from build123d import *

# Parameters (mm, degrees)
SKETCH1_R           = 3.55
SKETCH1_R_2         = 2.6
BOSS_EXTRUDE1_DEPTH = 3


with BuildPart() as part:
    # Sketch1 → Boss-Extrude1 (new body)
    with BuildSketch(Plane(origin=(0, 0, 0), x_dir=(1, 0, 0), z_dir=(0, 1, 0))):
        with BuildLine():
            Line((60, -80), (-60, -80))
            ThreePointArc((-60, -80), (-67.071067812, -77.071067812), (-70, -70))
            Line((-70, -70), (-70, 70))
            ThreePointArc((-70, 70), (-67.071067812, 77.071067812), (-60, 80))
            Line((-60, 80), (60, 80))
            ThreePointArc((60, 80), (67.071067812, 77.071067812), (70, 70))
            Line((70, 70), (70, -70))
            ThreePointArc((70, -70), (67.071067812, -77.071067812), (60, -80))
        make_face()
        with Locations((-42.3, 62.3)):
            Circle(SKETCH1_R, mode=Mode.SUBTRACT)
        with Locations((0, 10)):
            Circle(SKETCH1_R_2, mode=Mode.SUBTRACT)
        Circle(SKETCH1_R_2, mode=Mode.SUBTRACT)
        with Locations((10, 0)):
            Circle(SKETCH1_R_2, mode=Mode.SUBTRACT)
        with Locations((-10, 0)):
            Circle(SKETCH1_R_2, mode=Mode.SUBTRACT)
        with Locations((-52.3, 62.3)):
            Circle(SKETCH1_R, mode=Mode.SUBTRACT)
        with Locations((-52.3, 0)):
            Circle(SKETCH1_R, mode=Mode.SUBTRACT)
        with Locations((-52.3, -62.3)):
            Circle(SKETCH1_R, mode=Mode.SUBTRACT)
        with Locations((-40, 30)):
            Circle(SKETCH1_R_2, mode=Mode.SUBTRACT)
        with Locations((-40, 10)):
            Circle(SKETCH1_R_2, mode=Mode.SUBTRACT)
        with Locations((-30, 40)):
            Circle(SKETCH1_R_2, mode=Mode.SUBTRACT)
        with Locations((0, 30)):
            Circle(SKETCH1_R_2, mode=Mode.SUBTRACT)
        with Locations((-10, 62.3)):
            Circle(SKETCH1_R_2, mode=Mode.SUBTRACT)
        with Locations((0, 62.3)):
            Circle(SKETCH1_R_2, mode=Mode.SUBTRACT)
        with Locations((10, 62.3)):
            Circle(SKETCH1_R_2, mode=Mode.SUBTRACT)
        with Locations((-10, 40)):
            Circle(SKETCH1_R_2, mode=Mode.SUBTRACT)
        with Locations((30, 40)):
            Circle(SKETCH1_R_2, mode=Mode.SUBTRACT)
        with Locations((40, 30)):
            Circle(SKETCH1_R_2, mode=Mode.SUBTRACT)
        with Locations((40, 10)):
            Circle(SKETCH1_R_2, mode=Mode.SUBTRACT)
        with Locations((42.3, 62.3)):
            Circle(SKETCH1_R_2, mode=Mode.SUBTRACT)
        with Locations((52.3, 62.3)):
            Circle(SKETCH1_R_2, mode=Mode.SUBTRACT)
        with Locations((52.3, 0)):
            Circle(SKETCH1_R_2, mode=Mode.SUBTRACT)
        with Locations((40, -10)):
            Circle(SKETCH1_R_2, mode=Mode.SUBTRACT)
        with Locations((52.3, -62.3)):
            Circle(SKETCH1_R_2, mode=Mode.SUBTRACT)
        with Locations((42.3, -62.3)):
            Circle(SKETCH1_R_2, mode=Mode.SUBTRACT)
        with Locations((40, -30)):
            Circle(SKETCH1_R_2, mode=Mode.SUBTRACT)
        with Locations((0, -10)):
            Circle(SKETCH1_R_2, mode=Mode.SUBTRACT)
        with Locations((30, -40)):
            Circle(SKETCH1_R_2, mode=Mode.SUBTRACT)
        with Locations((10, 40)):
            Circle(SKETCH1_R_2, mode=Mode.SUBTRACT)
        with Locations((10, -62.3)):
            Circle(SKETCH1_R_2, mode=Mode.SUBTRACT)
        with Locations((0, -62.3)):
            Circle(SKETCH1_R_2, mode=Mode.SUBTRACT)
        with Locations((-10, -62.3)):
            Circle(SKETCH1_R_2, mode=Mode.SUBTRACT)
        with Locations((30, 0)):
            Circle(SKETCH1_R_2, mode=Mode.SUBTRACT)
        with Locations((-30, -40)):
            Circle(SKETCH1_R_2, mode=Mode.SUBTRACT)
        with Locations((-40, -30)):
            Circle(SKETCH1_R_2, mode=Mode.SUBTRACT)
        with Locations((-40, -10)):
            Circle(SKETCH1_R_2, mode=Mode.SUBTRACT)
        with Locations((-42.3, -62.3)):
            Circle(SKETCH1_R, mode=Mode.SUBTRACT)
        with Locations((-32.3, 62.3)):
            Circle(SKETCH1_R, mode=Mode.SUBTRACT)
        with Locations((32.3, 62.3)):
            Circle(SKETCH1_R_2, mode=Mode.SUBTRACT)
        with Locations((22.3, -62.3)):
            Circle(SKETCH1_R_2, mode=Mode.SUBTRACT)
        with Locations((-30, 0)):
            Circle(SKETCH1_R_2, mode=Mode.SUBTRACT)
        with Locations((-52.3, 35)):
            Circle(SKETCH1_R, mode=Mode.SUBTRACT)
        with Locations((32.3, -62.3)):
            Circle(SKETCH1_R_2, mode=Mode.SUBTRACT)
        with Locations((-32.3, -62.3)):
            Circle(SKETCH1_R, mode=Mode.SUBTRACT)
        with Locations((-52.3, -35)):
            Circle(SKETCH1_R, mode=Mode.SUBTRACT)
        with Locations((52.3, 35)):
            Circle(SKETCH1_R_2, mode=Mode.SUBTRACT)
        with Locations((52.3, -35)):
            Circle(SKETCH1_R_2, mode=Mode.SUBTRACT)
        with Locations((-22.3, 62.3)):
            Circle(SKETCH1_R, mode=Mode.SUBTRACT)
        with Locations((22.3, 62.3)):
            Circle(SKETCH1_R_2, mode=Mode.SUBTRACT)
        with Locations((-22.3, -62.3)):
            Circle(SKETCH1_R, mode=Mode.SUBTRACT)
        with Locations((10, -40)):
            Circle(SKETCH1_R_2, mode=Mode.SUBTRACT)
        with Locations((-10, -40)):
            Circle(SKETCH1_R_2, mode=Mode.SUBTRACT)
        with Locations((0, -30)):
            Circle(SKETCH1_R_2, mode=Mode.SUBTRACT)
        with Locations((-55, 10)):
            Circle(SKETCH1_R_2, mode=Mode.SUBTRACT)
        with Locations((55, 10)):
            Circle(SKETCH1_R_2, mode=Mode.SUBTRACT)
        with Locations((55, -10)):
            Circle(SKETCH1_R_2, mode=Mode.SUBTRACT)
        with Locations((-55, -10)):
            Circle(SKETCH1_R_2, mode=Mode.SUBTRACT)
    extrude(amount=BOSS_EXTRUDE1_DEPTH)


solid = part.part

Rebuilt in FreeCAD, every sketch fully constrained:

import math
import FreeCAD as App
import Part
import Sketcher

doc = App.newDocument("Part")
body = doc.addObject("PartDesign::Body", "Body")

sketch1 = doc.addObject("Sketcher::SketchObject", "Sketch")
body.addObject(sketch1)
sketch1.AttachmentSupport = (doc.XZ_Plane, [""])
sketch1.MapMode = "FlatFace"
sketch1.addGeometry([
    Part.LineSegment(App.Vector(-60, 80, 0), App.Vector(60, 80, 0)),
    Part.ArcOfCircle(Part.Circle(App.Vector(60, 70, 0), App.Vector(0, 0, 1), 10), math.radians(0), math.radians(90)),
    Part.LineSegment(App.Vector(70, 70, 0), App.Vector(70, -70, 0)),
    Part.ArcOfCircle(Part.Circle(App.Vector(60, -70, 0), App.Vector(0, 0, 1), 10), math.radians(-90), math.radians(0)),
    Part.LineSegment(App.Vector(60, -80, 0), App.Vector(-60, -80, 0)),
    Part.ArcOfCircle(Part.Circle(App.Vector(-60, -70, 0), App.Vector(0, 0, 1), 10), math.radians(180), math.radians(270)),
    Part.LineSegment(App.Vector(-70, -70, 0), App.Vector(-70, 70, 0)),
    Part.ArcOfCircle(Part.Circle(App.Vector(-60, 70, 0), App.Vector(0, 0, 1), 10), math.radians(90), math.radians(180)),
    Part.Circle(App.Vector(52.3, 62.3, 0), App.Vector(0, 0, 1), 2.6),
    Part.Circle(App.Vector(42.3, 62.3, 0), App.Vector(0, 0, 1), 2.6),
    Part.Circle(App.Vector(32.3, 62.3, 0), App.Vector(0, 0, 1), 2.6),
    Part.Circle(App.Vector(52.3, 35, 0), App.Vector(0, 0, 1), 2.6),
    Part.Circle(App.Vector(30, 40, 0), App.Vector(0, 0, 1), 2.6),
    Part.Circle(App.Vector(22.3, 62.3, 0), App.Vector(0, 0, 1), 2.6),
    Part.Circle(App.Vector(10, 62.3, 0), App.Vector(0, 0, 1), 2.6),
    Part.Circle(App.Vector(10, 40, 0), App.Vector(0, 0, 1), 2.6),
    Part.Circle(App.Vector(40, 30, 0), App.Vector(0, 0, 1), 2.6),
    Part.Circle(App.Vector(55, 10, 0), App.Vector(0, 0, 1), 2.6),
    Part.Circle(App.Vector(40, 10, 0), App.Vector(0, 0, 1), 2.6),
    Part.Circle(App.Vector(0, 62.3, 0), App.Vector(0, 0, 1), 2.6),
    Part.Circle(App.Vector(-10, 62.3, 0), App.Vector(0, 0, 1), 2.6),
    Part.Circle(App.Vector(-22.3, 62.3, 0), App.Vector(0, 0, 1), 3.5),
    Part.Circle(App.Vector(-10, 40, 0), App.Vector(0, 0, 1), 2.6),
    Part.Circle(App.Vector(-32.3, 62.3, 0), App.Vector(0, 0, 1), 3.5),
    Part.Circle(App.Vector(-42.3, 62.3, 0), App.Vector(0, 0, 1), 3.5),
    Part.Circle(App.Vector(-52.3, 62.3, 0), App.Vector(0, 0, 1), 3.5),
    Part.Circle(App.Vector(-30, 40, 0), App.Vector(0, 0, 1), 2.6),
    Part.Circle(App.Vector(-52.3, 35, 0), App.Vector(0, 0, 1), 3.5),
    Part.Circle(App.Vector(0, 30, 0), App.Vector(0, 0, 1), 2.6),
    Part.Circle(App.Vector(0, 10, 0), App.Vector(0, 0, 1), 2.6),
    Part.Circle(App.Vector(-40, 30, 0), App.Vector(0, 0, 1), 2.6),
    Part.Circle(App.Vector(-40, 10, 0), App.Vector(0, 0, 1), 2.6),
    Part.Circle(App.Vector(-55, 10, 0), App.Vector(0, 0, 1), 2.6),
    Part.Circle(App.Vector(52.3, 0, 0), App.Vector(0, 0, 1), 2.6),
    Part.Circle(App.Vector(55, -10, 0), App.Vector(0, 0, 1), 2.6),
    Part.Circle(App.Vector(30, 0, 0), App.Vector(0, 0, 1), 2.6),
    Part.Circle(App.Vector(40, -10, 0), App.Vector(0, 0, 1), 2.6),
    Part.Circle(App.Vector(40, -30, 0), App.Vector(0, 0, 1), 2.6),
    Part.Circle(App.Vector(10, 0, 0), App.Vector(0, 0, 1), 2.6),
    Part.Circle(App.Vector(52.3, -35, 0), App.Vector(0, 0, 1), 2.6),
    Part.Circle(App.Vector(30, -40, 0), App.Vector(0, 0, 1), 2.6),
    Part.Circle(App.Vector(52.3, -62.3, 0), App.Vector(0, 0, 1), 2.6),
    Part.Circle(App.Vector(42.3, -62.3, 0), App.Vector(0, 0, 1), 2.6),
    Part.Circle(App.Vector(32.3, -62.3, 0), App.Vector(0, 0, 1), 2.6),
    Part.Circle(App.Vector(10, -40, 0), App.Vector(0, 0, 1), 2.6),
    Part.Circle(App.Vector(22.3, -62.3, 0), App.Vector(0, 0, 1), 2.6),
    Part.Circle(App.Vector(10, -62.3, 0), App.Vector(0, 0, 1), 2.6),
    Part.Circle(App.Vector(0, 0, 0), App.Vector(0, 0, 1), 2.6),
    Part.Circle(App.Vector(-10, 0, 0), App.Vector(0, 0, 1), 2.6),
    Part.Circle(App.Vector(0, -10, 0), App.Vector(0, 0, 1), 2.6),
    Part.Circle(App.Vector(0, -30, 0), App.Vector(0, 0, 1), 2.6),
    Part.Circle(App.Vector(-30, 0, 0), App.Vector(0, 0, 1), 2.6),
    Part.Circle(App.Vector(-40, -10, 0), App.Vector(0, 0, 1), 2.6),
    Part.Circle(App.Vector(-52.3, 0, 0), App.Vector(0, 0, 1), 3.5),
    Part.Circle(App.Vector(-55, -10, 0), App.Vector(0, 0, 1), 2.6),
    Part.Circle(App.Vector(-40, -30, 0), App.Vector(0, 0, 1), 2.6),
    Part.Circle(App.Vector(-10, -40, 0), App.Vector(0, 0, 1), 2.6),
    Part.Circle(App.Vector(0, -62.3, 0), App.Vector(0, 0, 1), 2.6),
    Part.Circle(App.Vector(-10, -62.3, 0), App.Vector(0, 0, 1), 2.6),
    Part.Circle(App.Vector(-22.3, -62.3, 0), App.Vector(0, 0, 1), 3.5),
    Part.Circle(App.Vector(-30, -40, 0), App.Vector(0, 0, 1), 2.6),
    Part.Circle(App.Vector(-52.3, -35, 0), App.Vector(0, 0, 1), 3.5),
    Part.Circle(App.Vector(-32.3, -62.3, 0), App.Vector(0, 0, 1), 3.5),
    Part.Circle(App.Vector(-42.3, -62.3, 0), App.Vector(0, 0, 1), 3.5),
    Part.Circle(App.Vector(-52.3, -62.3, 0), App.Vector(0, 0, 1), 3.5),
], False)
sketch1.addConstraint([
    Sketcher.Constraint("Tangent", 0, 2, 1, 2),
    Sketcher.Constraint("Tangent", 1, 1, 2, 1),
    Sketcher.Constraint("Tangent", 2, 2, 3, 2),
    Sketcher.Constraint("Tangent", 3, 1, 4, 1),
    Sketcher.Constraint("Tangent", 4, 2, 5, 2),
    Sketcher.Constraint("Tangent", 5, 1, 6, 1),
    Sketcher.Constraint("Tangent", 6, 2, 7, 2),
    Sketcher.Constraint("Tangent", 7, 1, 0, 1),
    Sketcher.Constraint("Horizontal", 0),
    Sketcher.Constraint("Vertical", 2),
    Sketcher.Constraint("Horizontal", 4),
    Sketcher.Constraint("Vertical", 6),
    Sketcher.Constraint("Coincident", 47, 3, -1, 1),
    Sketcher.Constraint("Equal", 1, 3),
    Sketcher.Constraint("Equal", 3, 5),
    Sketcher.Constraint("Equal", 5, 7),
    Sketcher.Constraint("Equal", 8, 9),
    Sketcher.Constraint("Equal", 9, 10),
    Sketcher.Constraint("Equal", 10, 11),
    Sketcher.Constraint("Equal", 11, 12),
    Sketcher.Constraint("Equal", 12, 13),
    Sketcher.Constraint("Equal", 13, 14),
    Sketcher.Constraint("Equal", 14, 15),
    Sketcher.Constraint("Equal", 15, 16),
    Sketcher.Constraint("Equal", 16, 17),
    Sketcher.Constraint("Equal", 17, 18),
    Sketcher.Constraint("Equal", 18, 19),
    Sketcher.Constraint("Equal", 19, 20),
    Sketcher.Constraint("Equal", 20, 22),
    Sketcher.Constraint("Equal", 21, 23),
    Sketcher.Constraint("Equal", 23, 24),
    Sketcher.Constraint("Equal", 24, 25),
    Sketcher.Constraint("Equal", 22, 26),
    Sketcher.Constraint("Equal", 25, 27),
    Sketcher.Constraint("Equal", 26, 28),
    Sketcher.Constraint("Equal", 28, 29),
    Sketcher.Constraint("Equal", 29, 30),
    Sketcher.Constraint("Equal", 30, 31),
    Sketcher.Constraint("Equal", 31, 32),
    Sketcher.Constraint("Equal", 32, 33),
    Sketcher.Constraint("Equal", 33, 34),
    Sketcher.Constraint("Equal", 34, 35),
    Sketcher.Constraint("Equal", 35, 36),
    Sketcher.Constraint("Equal", 36, 37),
    Sketcher.Constraint("Equal", 37, 38),
    Sketcher.Constraint("Equal", 38, 39),
    Sketcher.Constraint("Equal", 39, 40),
    Sketcher.Constraint("Equal", 40, 41),
    Sketcher.Constraint("Equal", 41, 42),
    Sketcher.Constraint("Equal", 42, 43),
    Sketcher.Constraint("Equal", 43, 44),
    Sketcher.Constraint("Equal", 44, 45),
    Sketcher.Constraint("Equal", 45, 46),
    Sketcher.Constraint("Equal", 46, 47),
    Sketcher.Constraint("Equal", 47, 48),
    Sketcher.Constraint("Equal", 48, 49),
    Sketcher.Constraint("Equal", 49, 50),
    Sketcher.Constraint("Equal", 50, 51),
    Sketcher.Constraint("Equal", 51, 52),
    Sketcher.Constraint("Equal", 27, 53),
    Sketcher.Constraint("Equal", 52, 54),
    Sketcher.Constraint("Equal", 54, 55),
    Sketcher.Constraint("Equal", 55, 56),
    Sketcher.Constraint("Equal", 56, 57),
    Sketcher.Constraint("Equal", 57, 58),
    Sketcher.Constraint("Equal", 53, 59),
    Sketcher.Constraint("Equal", 58, 60),
    Sketcher.Constraint("Equal", 59, 61),
    Sketcher.Constraint("Equal", 61, 62),
    Sketcher.Constraint("Equal", 62, 63),
    Sketcher.Constraint("Equal", 63, 64),
    Sketcher.Constraint("Symmetric", 1, 3, 5, 3, -1, 1),
    Sketcher.Constraint("Symmetric", 32, 3, 34, 3, -1, 1),
    Sketcher.Constraint("Symmetric", 31, 3, 36, 3, -1, 1),
    Sketcher.Constraint("Symmetric", 30, 3, 37, 3, -1, 1),
    Sketcher.Constraint("Symmetric", 27, 3, 39, 3, -1, 1),
    Sketcher.Constraint("Symmetric", 26, 3, 40, 3, -1, 1),
    Sketcher.Constraint("Symmetric", 25, 3, 41, 3, -1, 1),
    Sketcher.Constraint("Symmetric", 24, 3, 42, 3, -1, 1),
    Sketcher.Constraint("Symmetric", 23, 3, 43, 3, -1, 1),
    Sketcher.Constraint("Symmetric", 22, 3, 44, 3, -1, 1),
    Sketcher.Constraint("Symmetric", 21, 3, 45, 3, -1, 1),
    Sketcher.Constraint("Symmetric", 20, 3, 46, 3, -1, 1),
    Sketcher.Constraint("Symmetric", 38, 3, 48, 3, -1, 1),
    Sketcher.Constraint("Symmetric", 29, 3, 49, 3, -1, 1),
    Sketcher.Constraint("Symmetric", 28, 3, 50, 3, -1, 1),
    Sketcher.Constraint("Symmetric", 35, 3, 51, 3, -1, 1),
    Sketcher.Constraint("Symmetric", 18, 3, 52, 3, -1, 1),
    Sketcher.Constraint("Symmetric", 33, 3, 53, 3, -1, 1),
    Sketcher.Constraint("Symmetric", 17, 3, 54, 3, -1, 1),
    Sketcher.Constraint("Symmetric", 16, 3, 55, 3, -1, 1),
    Sketcher.Constraint("Symmetric", 15, 3, 56, 3, -1, 1),
    Sketcher.Constraint("Symmetric", 19, 3, 57, 3, -1, 1),
    Sketcher.Constraint("Symmetric", 14, 3, 58, 3, -1, 1),
    Sketcher.Constraint("Symmetric", 13, 3, 59, 3, -1, 1),
    Sketcher.Constraint("Symmetric", 12, 3, 60, 3, -1, 1),
    Sketcher.Constraint("Symmetric", 11, 3, 61, 3, -1, 1),
    Sketcher.Constraint("Symmetric", 10, 3, 62, 3, -1, 1),
    Sketcher.Constraint("Symmetric", 9, 3, 63, 3, -1, 1),
    Sketcher.Constraint("Symmetric", 8, 3, 64, 3, -1, 1),
    Sketcher.Constraint("Symmetric", 14, 3, 20, 3, -2),
    Sketcher.Constraint("Symmetric", 13, 3, 21, 3, -2),
    Sketcher.Constraint("Symmetric", 15, 3, 22, 3, -2),
    Sketcher.Constraint("Symmetric", 10, 3, 23, 3, -2),
    Sketcher.Constraint("Symmetric", 9, 3, 24, 3, -2),
    Sketcher.Constraint("Symmetric", 8, 3, 25, 3, -2),
    Sketcher.Constraint("Symmetric", 12, 3, 26, 3, -2),
    Sketcher.Constraint("Symmetric", 11, 3, 27, 3, -2),
    Sketcher.Constraint("Symmetric", 16, 3, 30, 3, -2),
    Sketcher.Constraint("Symmetric", 18, 3, 31, 3, -2),
    Sketcher.Constraint("Symmetric", 17, 3, 32, 3, -2),
    Sketcher.Constraint("PointOnObject", 19, 3, -2),
    Sketcher.Constraint("PointOnObject", 28, 3, -2),
    Sketcher.Constraint("PointOnObject", 29, 3, -2),
    Sketcher.Constraint("PointOnObject", 33, 3, -1),
    Sketcher.Constraint("PointOnObject", 35, 3, -1),
    Sketcher.Constraint("PointOnObject", 38, 3, -1),
    Sketcher.Constraint("Horizontal", 8, 3, 9, 3),
    Sketcher.Constraint("Horizontal", 9, 3, 10, 3),
    Sketcher.Constraint("Horizontal", 10, 3, 13, 3),
    Sketcher.Constraint("Horizontal", 13, 3, 14, 3),
    Sketcher.Constraint("Horizontal", 12, 3, 15, 3),
    Sketcher.Constraint("Horizontal", 17, 3, 18, 3),
    Sketcher.Constraint("Horizontal", 14, 3, 19, 3),
    Sketcher.Constraint("Horizontal", 16, 3, 28, 3),
    Sketcher.Constraint("Horizontal", 18, 3, 29, 3),
    Sketcher.Constraint("Vertical", 8, 3, 11, 3),
    Sketcher.Constraint("Vertical", 14, 3, 15, 3),
    Sketcher.Constraint("Vertical", 16, 3, 18, 3),
    Sketcher.Constraint("Vertical", 11, 3, 33, 3),
    Sketcher.Constraint("Vertical", 12, 3, 35, 3),
    Sketcher.Constraint("Vertical", 15, 3, 38, 3),
    Sketcher.Constraint("Radius", 1, 10.0),
    Sketcher.Constraint("Diameter", 8, 5.2),
    Sketcher.Constraint("Diameter", 21, 7.1),
    Sketcher.Constraint("DistanceX", 0, 1, 0, 2, 120.0),
    Sketcher.Constraint("DistanceY", 2, 2, 2, 1, 140.0),
    Sketcher.Constraint("DistanceY", -1, 1, 11, 3, 35.0),
    Sketcher.Constraint("DistanceX", -1, 1, 12, 3, 30.0),
    Sketcher.Constraint("DistanceY", -1, 1, 12, 3, 40.0),
    Sketcher.Constraint("DistanceX", -1, 1, 14, 3, 10.0),
    Sketcher.Constraint("DistanceX", -1, 1, 16, 3, 40.0),
    Sketcher.Constraint("DistanceY", -1, 1, 16, 3, 30.0),
    Sketcher.Constraint("DistanceX", -1, 1, 17, 3, 55.0),
    Sketcher.Constraint("DistanceY", -1, 1, 17, 3, 10.0),
    Sketcher.Constraint("DistanceX", -1, 1, 8, 3, 52.3),
    Sketcher.Constraint("DistanceY", -1, 1, 8, 3, 62.3),
    Sketcher.Constraint("DistanceX", -1, 1, 9, 3, 42.3),
    Sketcher.Constraint("DistanceX", -1, 1, 10, 3, 32.3),
    Sketcher.Constraint("DistanceX", -1, 1, 13, 3, 22.3),
])
pad1 = doc.addObject("PartDesign::Pad", "Pad")
body.addObject(pad1)
pad1.Profile = sketch1
pad1.Length = 3
pad1.Reversed = True

doc.recompute()
